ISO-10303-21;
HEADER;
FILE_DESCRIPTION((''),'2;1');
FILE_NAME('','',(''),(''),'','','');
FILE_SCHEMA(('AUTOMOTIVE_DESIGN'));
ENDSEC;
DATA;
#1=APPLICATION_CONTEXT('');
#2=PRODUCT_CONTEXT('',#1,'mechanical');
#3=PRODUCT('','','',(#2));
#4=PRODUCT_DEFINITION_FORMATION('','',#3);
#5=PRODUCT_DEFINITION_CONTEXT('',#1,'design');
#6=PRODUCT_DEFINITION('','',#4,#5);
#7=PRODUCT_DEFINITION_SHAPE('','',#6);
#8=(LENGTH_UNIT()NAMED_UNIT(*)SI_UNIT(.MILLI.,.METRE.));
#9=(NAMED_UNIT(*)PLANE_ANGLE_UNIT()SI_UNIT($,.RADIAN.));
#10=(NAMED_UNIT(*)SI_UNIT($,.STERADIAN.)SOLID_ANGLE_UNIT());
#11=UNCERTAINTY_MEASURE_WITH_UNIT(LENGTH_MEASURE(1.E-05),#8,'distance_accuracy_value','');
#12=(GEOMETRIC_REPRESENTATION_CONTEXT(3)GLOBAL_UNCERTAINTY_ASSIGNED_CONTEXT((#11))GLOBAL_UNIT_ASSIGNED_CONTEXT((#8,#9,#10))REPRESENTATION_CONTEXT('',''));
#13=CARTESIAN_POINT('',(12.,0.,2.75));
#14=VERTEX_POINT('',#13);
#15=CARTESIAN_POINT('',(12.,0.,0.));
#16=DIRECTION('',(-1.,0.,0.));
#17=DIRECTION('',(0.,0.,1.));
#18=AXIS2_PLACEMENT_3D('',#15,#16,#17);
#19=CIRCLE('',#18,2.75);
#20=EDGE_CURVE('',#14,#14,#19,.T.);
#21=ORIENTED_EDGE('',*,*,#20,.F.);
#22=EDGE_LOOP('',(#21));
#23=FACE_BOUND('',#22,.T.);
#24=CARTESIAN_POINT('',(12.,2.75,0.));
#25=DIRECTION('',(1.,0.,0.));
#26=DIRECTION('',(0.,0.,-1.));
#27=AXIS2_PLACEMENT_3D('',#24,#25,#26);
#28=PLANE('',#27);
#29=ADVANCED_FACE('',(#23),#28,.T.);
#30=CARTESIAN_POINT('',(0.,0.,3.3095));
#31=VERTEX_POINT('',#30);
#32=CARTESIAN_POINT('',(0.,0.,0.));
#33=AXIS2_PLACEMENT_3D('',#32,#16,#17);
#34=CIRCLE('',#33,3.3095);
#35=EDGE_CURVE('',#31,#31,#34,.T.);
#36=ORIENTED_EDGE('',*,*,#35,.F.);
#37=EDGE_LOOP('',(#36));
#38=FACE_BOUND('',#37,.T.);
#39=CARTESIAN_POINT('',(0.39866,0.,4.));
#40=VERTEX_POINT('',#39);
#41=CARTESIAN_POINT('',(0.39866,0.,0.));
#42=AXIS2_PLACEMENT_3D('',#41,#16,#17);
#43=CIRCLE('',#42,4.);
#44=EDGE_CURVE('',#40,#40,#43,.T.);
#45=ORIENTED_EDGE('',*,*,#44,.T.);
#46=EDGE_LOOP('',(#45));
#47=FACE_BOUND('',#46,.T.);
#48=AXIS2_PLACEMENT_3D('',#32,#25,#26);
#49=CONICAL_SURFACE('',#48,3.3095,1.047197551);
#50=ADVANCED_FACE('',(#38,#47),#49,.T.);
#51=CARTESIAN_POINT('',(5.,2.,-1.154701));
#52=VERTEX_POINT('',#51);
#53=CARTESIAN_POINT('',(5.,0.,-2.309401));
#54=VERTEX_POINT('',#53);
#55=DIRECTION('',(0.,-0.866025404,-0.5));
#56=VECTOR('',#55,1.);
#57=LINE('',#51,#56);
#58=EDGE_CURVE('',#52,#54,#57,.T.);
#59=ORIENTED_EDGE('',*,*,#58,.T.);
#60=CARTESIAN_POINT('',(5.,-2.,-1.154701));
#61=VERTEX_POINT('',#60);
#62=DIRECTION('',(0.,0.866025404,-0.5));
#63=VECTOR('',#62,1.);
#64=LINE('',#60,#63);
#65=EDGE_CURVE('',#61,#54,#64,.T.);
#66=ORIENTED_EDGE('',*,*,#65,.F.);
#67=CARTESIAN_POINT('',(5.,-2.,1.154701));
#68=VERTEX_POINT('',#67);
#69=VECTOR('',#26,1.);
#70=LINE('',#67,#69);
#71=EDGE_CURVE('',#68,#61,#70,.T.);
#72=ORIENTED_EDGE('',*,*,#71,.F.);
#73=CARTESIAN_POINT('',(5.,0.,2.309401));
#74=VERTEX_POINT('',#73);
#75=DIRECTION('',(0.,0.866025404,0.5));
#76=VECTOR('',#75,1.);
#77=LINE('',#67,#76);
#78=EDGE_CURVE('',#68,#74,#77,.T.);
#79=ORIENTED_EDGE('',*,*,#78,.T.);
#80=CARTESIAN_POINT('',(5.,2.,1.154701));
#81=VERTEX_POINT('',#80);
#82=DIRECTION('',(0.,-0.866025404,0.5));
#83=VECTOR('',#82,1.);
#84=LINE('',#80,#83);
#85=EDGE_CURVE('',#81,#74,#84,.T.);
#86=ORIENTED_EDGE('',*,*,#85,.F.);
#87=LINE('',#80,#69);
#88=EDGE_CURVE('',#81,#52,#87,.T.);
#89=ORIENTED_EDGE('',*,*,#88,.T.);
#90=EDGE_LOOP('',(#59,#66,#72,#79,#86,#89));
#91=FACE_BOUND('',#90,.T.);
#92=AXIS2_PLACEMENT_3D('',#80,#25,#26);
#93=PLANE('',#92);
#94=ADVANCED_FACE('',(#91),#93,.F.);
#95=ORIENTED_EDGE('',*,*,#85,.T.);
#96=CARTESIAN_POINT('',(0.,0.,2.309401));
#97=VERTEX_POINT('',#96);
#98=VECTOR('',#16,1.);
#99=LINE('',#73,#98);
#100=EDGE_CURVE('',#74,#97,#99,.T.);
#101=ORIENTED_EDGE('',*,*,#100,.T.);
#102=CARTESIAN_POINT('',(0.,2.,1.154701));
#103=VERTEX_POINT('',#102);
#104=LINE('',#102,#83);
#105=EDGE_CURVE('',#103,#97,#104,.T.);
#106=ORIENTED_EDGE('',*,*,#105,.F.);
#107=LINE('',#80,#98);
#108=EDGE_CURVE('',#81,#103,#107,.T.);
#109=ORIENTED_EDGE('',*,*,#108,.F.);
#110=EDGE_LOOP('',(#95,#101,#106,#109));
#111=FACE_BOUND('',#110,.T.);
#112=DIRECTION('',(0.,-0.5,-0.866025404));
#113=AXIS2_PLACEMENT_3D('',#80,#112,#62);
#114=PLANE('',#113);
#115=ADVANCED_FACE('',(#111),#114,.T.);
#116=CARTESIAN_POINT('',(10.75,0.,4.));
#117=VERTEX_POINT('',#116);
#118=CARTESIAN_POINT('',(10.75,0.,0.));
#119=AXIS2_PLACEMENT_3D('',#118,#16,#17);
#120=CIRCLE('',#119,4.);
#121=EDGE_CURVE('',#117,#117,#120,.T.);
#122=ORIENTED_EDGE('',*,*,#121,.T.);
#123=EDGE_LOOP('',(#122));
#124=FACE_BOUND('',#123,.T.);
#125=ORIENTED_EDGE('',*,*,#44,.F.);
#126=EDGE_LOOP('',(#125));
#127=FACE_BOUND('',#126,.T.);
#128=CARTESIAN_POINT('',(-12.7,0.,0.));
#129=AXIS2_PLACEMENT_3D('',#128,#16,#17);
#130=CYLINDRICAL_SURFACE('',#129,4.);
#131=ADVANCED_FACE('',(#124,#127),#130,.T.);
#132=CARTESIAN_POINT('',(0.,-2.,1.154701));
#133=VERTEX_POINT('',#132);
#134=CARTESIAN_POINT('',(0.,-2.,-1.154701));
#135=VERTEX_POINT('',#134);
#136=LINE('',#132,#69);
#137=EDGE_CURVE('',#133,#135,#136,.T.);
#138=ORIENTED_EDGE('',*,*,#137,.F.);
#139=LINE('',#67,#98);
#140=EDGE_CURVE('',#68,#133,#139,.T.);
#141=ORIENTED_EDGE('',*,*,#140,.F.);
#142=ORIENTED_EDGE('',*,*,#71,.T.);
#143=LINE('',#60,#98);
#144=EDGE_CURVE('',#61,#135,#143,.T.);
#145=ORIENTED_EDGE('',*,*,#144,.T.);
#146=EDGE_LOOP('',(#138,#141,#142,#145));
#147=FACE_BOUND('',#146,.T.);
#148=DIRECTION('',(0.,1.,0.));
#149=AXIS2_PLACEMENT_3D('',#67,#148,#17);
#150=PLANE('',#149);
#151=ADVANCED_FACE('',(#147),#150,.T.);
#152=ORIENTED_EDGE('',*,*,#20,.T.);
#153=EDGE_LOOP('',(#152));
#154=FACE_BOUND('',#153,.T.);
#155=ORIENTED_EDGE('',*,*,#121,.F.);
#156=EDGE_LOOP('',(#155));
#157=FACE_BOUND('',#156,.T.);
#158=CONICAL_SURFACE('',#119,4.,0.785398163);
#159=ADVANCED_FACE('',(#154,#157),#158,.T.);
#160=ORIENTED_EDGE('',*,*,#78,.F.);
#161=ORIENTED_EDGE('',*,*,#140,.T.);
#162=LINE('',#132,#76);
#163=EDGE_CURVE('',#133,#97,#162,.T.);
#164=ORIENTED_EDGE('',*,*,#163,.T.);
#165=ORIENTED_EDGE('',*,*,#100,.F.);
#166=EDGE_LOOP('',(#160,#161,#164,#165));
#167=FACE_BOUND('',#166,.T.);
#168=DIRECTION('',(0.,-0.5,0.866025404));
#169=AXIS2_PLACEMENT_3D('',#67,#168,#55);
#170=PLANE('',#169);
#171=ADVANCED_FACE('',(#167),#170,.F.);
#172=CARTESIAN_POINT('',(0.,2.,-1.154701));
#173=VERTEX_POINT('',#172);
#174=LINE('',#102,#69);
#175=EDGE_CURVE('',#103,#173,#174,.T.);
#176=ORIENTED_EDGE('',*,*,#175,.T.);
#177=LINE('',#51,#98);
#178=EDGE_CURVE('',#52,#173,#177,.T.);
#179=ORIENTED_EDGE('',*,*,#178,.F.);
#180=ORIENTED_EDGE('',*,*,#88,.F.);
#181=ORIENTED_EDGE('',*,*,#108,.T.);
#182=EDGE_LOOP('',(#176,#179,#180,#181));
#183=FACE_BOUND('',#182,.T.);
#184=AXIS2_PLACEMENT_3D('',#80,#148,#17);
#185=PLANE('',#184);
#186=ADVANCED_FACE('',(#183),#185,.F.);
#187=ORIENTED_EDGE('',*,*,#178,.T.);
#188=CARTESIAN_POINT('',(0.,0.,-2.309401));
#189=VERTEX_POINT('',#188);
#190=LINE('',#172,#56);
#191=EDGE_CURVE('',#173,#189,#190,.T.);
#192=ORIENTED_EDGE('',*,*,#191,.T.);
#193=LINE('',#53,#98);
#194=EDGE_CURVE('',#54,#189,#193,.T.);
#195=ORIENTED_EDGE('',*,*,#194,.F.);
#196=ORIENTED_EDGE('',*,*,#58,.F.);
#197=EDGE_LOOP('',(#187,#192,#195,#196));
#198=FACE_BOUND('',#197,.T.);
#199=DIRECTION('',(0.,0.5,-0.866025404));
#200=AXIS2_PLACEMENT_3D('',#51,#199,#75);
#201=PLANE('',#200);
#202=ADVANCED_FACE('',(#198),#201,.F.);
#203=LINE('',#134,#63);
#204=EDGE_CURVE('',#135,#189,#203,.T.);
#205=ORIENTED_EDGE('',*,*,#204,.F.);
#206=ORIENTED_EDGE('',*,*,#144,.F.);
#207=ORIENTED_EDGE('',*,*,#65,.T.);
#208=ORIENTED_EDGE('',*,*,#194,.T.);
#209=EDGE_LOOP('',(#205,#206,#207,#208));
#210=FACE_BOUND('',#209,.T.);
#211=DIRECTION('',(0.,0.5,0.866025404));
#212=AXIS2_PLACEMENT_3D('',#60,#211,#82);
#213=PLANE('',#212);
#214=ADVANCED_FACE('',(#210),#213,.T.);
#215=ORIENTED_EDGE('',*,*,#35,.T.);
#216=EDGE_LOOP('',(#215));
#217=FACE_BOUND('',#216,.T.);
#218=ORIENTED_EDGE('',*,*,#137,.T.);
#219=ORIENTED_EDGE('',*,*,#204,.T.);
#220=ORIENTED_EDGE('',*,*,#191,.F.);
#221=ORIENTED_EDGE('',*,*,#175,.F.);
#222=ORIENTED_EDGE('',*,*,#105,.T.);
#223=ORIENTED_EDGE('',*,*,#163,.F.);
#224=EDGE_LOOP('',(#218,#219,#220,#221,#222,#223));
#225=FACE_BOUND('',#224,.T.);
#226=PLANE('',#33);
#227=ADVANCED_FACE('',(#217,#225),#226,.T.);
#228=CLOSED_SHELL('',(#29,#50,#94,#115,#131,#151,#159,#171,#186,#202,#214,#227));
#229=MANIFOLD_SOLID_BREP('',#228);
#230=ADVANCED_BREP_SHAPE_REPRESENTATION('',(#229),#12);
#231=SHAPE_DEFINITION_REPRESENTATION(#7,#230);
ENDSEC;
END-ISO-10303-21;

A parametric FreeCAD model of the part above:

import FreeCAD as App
import Part
import Sketcher
Q = App.Units.Quantity


def add_polygon(sketch, points):
    """Adds a closed chain of lines whose ends are joined by coincident constraints."""
    first, n = sketch.GeometryCount, len(points)
    for a, b in zip(points, points[1:] + points[:1]):
        sketch.addGeometry(Part.LineSegment(App.Vector(*a, 0), App.Vector(*b, 0)), False)
    for i in range(n):
        sketch.addConstraint(Sketcher.Constraint("Coincident", first + i, 2, first + (i + 1) % n, 1))

doc = App.newDocument("Part")
params = doc.addObject("Spreadsheet::Sheet", "Params")
for row, (alias, value) in enumerate([
    ("sketch1_width", "12 mm"),
    ("sketch1_height", "2.75 mm"),
    ("revolution_angle", "360 deg"),
    ("pocket1_length", "5 mm"),
], start=1):
    params.set(f"A{row}", alias)
    params.set(f"B{row}", "=" + value)
    params.setAlias(f"B{row}", alias)

body = doc.addObject("PartDesign::Body", "Body")

# Sketch on XY plane
sketch1 = body.newObject("Sketcher::SketchObject", "Sketch")
sketch1.AttachmentSupport = (doc.getObject("XY_Plane"), [""])
sketch1.MapMode = "FlatFace"
add_polygon(sketch1, [(0, 3.3), (0, 0), (12, 0), (12, 2.8), (10.8, 4), (0.4, 4)])  # lines 0-5
sketch1.addConstraint(Sketcher.Constraint("Vertical", 0))
sketch1.addConstraint(Sketcher.Constraint("Horizontal", 1))
sketch1.addConstraint(Sketcher.Constraint("Vertical", 2))
sketch1.addConstraint(Sketcher.Constraint("Horizontal", 4))
sketch1.addConstraint(Sketcher.Constraint("Coincident", 0, 2, -1, 1))
sketch1.addConstraint(Sketcher.Constraint("DistanceX", 1, 1, 1, 2, 12.0))
sketch1.addConstraint(Sketcher.Constraint("Angle", 3, Q("135 deg")))
sketch1.addConstraint(Sketcher.Constraint("Angle", 5, Q("-120 deg")))
sketch1.addConstraint(Sketcher.Constraint("DistanceY", -1, 1, 3, 2, 4.0))
sketch1.addConstraint(Sketcher.Constraint("DistanceY", 2, 1, 2, 2, 2.75))
sketch1.addConstraint(Sketcher.Constraint("DistanceY", 0, 2, 0, 1, 3.3095))
sketch1.setExpression("Constraints[11]", "Params.sketch1_width")
sketch1.setExpression("Constraints[15]", "Params.sketch1_height")
revolution = body.newObject("PartDesign::Revolution", "Revolution")
revolution.Profile = sketch1
revolution.ReferenceAxis = (sketch1, ["H_Axis"])
revolution.setExpression("Angle", "Params.revolution_angle")

# Sketch on YZ plane
sketch2 = body.newObject("Sketcher::SketchObject", "Sketch001")
sketch2.AttachmentSupport = (doc.getObject("YZ_Plane"), [""])
sketch2.MapMode = "FlatFace"
add_polygon(sketch2, [(2, 1.2), (2, -1.2), (0, -2.3), (-2, -1.2), (-2, 1.2), (0, 2.3)])  # lines 0-5
sketch2.addConstraint(Sketcher.Constraint("Vertical", 0))
sketch2.addConstraint(Sketcher.Constraint("Vertical", 3))
sketch2.addConstraint(Sketcher.Constraint("Symmetric", 0, 2, 3, 2, -1, 1))
sketch2.addConstraint(Sketcher.Constraint("Symmetric", 1, 2, 4, 2, -1, 1))
sketch2.addConstraint(Sketcher.Constraint("PointOnObject", 1, 2, -2))
sketch2.addConstraint(Sketcher.Constraint("Parallel", 2, 5))
sketch2.addConstraint(Sketcher.Constraint("Horizontal", 0, 2, 2, 2))
sketch2.addConstraint(Sketcher.Constraint("Angle", 1, Q("-150 deg")))
sketch2.addConstraint(Sketcher.Constraint("DistanceX", -1, 1, 0, 2, 2.0))
sketch2.addConstraint(Sketcher.Constraint("DistanceY", 0, 2, 0, 1, 2.309401))
pocket1 = body.newObject("PartDesign::Pocket", "Pocket")
pocket1.Profile = sketch2
pocket1.setExpression("Length", "Params.pocket1_length")
pocket1.Reversed = True

doc.recompute()
